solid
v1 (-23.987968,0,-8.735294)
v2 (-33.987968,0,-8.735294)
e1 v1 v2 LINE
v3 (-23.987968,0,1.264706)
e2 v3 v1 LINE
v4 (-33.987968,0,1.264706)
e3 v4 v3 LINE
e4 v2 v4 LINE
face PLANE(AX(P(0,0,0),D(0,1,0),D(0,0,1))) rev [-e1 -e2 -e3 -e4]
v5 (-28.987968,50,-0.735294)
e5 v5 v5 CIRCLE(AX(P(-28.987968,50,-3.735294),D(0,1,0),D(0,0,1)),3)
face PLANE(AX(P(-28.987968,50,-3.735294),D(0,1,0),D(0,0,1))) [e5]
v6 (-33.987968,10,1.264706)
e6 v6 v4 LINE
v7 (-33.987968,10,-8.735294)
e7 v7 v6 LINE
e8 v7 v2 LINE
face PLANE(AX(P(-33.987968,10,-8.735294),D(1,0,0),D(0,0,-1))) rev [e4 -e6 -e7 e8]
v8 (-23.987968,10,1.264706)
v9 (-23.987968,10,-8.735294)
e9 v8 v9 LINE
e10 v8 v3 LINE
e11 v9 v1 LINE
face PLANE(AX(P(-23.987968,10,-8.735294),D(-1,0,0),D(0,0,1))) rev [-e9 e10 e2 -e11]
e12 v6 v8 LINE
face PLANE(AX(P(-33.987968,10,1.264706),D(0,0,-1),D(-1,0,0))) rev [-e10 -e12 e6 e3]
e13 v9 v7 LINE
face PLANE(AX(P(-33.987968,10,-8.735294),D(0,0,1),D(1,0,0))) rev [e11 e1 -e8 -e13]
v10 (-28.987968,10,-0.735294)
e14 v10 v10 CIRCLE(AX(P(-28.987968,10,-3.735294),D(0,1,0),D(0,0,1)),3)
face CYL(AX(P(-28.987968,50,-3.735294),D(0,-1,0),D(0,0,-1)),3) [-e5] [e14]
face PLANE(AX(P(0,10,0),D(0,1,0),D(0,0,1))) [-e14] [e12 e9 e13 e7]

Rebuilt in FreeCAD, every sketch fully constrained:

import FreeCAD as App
import Part
import Sketcher

V = App.Vector
Q = App.Units.Quantity


def add_polygon(sketch, points):
    """Adds a closed chain of lines whose ends are joined by coincident constraints."""
    first, n = sketch.GeometryCount, len(points)
    for a, b in zip(points, points[1:] + points[:1]):
        sketch.addGeometry(Part.LineSegment(App.Vector(*a, 0), App.Vector(*b, 0)), False)
    for i in range(n):
        sketch.addConstraint(Sketcher.Constraint("Coincident", first + i, 2, first + (i + 1) % n, 1))

doc = App.newDocument("Part")
params = doc.addObject("Spreadsheet::Sheet", "Params")
for row, (alias, value) in enumerate([
    ("sketch1_width", "10 mm"),
    ("pad1_length", "10 mm"),
    ("sketch2_diameter", "6 mm"),
    ("pad2_length", "40 mm"),
], start=1):
    params.set(f"A{row}", alias)
    params.set(f"B{row}", "=" + value)
    params.setAlias(f"B{row}", alias)

body = doc.addObject("PartDesign::Body", "Body")

# Sketch on XZ plane
sketch1 = doc.addObject("Sketcher::SketchObject", "Sketch")
body.addObject(sketch1)
sketch1.AttachmentSupport = (doc.XZ_Plane, [""])
sketch1.MapMode = "FlatFace"
add_polygon(sketch1, [(-34, -9), (-34, 1), (-24, 1), (-24, -9)])  # lines 0-3
sketch1.addConstraint([
    Sketcher.Constraint("Vertical", 0),
    Sketcher.Constraint("Horizontal", 1),
    Sketcher.Constraint("Vertical", 2),
    Sketcher.Constraint("Horizontal", 3),
    Sketcher.Constraint("Equal", 3, 0),
    Sketcher.Constraint("DistanceX", 1, 1, 1, 2, Q("10 mm")),
    Sketcher.Constraint("DistanceX", 0, 2, -1, 1, Q("33.987968 mm")),
    Sketcher.Constraint("DistanceY", -1, 1, 0, 2, Q("1.264706 mm")),
])
sketch1.setExpression("Constraints[9]", "Params.sketch1_width")
pad1 = doc.addObject("PartDesign::Pad", "Pad")
body.addObject(pad1)
pad1.Profile = sketch1
pad1.setExpression("Length", "Params.pad1_length")
pad1.Reversed = True

# Sketch on XZ plane
sketch2 = doc.addObject("Sketcher::SketchObject", "Sketch001")
body.addObject(sketch2)
sketch2.AttachmentSupport = (doc.XZ_Plane, [""])
sketch2.MapMode = "FlatFace"
sketch2.AttachmentOffset = App.Placement(V(0, 0, -10), App.Rotation())
sketch2.addGeometry(Part.Circle(V(-29, -3.7, 0), V(0, 0, 1), 3), False)
sketch2.addConstraint([
    Sketcher.Constraint("Diameter", 0, Q("6 mm")),
    Sketcher.Constraint("DistanceX", 0, 3, -1, 1, Q("28.987968 mm")),
    Sketcher.Constraint("DistanceY", 0, 3, -1, 1, Q("3.735294 mm")),
])
sketch2.setExpression("Constraints[0]", "Params.sketch2_diameter")
pad2 = doc.addObject("PartDesign::Pad", "Pad001")
body.addObject(pad2)
pad2.Profile = sketch2
pad2.setExpression("Length", "Params.pad2_length")
pad2.Reversed = True

doc.recompute()
